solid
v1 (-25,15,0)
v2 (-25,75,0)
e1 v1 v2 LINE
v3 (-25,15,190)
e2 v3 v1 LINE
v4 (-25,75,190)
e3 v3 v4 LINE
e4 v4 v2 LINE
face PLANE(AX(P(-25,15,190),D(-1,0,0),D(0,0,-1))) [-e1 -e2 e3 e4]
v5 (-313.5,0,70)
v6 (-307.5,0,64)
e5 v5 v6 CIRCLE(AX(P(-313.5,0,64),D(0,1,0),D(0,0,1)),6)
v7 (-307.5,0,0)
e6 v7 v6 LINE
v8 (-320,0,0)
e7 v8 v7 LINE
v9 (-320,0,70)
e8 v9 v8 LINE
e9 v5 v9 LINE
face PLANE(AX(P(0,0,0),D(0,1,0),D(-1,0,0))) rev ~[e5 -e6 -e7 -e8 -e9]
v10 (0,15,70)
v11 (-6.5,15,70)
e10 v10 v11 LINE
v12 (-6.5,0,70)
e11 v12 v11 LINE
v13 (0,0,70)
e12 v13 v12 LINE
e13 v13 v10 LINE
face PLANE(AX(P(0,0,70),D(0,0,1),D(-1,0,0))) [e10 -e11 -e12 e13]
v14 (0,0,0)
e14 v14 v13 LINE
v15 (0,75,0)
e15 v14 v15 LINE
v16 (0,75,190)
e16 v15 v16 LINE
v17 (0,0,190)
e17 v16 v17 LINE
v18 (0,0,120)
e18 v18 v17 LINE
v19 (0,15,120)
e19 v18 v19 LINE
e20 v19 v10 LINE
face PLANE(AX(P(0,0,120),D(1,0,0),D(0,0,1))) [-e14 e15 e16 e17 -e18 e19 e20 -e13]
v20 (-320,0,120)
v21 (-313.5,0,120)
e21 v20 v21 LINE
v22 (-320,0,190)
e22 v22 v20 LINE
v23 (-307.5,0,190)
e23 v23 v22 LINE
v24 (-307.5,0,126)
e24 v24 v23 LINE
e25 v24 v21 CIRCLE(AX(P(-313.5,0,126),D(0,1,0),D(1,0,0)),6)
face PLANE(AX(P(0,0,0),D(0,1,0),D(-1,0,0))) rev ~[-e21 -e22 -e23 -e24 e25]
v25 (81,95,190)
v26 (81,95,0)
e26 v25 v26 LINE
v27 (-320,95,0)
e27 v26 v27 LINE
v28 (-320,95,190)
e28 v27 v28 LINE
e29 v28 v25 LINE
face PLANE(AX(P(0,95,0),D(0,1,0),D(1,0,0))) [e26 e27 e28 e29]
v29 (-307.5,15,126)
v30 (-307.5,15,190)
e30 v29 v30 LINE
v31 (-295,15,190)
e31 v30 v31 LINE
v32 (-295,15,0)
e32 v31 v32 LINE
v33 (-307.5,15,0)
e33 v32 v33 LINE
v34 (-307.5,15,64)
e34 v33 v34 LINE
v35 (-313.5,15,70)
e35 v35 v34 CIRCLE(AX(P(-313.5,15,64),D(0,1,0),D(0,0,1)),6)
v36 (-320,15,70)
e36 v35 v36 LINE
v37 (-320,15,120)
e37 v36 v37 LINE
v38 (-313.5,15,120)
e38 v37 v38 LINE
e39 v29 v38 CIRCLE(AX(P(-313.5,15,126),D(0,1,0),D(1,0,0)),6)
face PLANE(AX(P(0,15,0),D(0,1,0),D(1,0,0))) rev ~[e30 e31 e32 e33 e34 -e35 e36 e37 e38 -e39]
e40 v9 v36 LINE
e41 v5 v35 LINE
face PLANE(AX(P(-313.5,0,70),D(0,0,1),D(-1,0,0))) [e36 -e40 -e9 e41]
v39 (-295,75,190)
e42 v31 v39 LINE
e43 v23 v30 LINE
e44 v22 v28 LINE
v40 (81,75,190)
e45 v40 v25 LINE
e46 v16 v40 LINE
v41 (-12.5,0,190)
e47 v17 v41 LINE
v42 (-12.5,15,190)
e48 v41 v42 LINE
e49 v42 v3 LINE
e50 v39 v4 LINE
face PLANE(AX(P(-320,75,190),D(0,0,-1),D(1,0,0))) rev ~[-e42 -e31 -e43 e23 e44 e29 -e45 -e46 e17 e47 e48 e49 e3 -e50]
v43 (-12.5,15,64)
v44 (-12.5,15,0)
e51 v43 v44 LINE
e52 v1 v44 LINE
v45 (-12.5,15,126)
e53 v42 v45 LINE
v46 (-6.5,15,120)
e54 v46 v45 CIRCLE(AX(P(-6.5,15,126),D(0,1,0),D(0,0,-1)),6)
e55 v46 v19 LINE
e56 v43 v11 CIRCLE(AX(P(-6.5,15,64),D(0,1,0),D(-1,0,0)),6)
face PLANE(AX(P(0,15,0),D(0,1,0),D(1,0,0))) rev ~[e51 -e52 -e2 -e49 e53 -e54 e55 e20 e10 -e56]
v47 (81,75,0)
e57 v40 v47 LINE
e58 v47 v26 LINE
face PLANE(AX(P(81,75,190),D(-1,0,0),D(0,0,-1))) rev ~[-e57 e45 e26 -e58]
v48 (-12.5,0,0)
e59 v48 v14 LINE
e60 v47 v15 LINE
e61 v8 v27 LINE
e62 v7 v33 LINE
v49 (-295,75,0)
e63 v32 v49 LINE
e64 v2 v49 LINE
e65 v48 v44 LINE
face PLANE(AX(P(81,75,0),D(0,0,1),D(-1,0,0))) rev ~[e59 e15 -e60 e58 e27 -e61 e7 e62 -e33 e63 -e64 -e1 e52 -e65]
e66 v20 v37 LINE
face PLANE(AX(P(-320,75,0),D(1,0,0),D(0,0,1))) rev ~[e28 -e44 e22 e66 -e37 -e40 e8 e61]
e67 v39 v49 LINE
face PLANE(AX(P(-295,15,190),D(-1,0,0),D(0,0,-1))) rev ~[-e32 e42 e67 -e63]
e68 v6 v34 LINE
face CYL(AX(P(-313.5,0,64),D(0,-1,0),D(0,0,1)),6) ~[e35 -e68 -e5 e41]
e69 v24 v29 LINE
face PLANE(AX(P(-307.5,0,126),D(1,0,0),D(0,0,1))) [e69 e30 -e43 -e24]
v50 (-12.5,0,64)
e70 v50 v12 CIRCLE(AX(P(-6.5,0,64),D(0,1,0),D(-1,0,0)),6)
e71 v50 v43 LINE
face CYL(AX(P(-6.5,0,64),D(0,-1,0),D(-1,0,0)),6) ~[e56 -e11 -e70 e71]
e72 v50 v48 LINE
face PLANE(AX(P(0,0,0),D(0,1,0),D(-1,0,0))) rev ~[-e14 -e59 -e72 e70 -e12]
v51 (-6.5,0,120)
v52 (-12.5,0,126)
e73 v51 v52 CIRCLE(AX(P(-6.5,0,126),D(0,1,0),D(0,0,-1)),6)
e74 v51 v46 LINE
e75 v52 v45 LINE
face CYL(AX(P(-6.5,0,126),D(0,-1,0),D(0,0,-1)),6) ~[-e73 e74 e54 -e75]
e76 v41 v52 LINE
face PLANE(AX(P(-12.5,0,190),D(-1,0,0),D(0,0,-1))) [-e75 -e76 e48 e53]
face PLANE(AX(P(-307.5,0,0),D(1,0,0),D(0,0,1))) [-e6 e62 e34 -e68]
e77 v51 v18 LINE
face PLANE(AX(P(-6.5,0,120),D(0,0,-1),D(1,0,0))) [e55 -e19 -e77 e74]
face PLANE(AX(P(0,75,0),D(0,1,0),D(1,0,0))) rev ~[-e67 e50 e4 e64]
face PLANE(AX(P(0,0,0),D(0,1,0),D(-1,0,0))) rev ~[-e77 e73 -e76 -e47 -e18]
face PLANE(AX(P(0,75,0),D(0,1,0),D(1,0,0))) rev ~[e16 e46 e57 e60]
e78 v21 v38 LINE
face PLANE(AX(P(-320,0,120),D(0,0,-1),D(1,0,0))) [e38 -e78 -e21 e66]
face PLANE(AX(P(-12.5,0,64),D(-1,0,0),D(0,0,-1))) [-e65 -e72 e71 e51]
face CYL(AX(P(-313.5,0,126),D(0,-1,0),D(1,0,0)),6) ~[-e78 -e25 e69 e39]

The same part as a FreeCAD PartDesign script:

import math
import FreeCAD as App
import Part
import Sketcher

V = App.Vector
Q = App.Units.Quantity

doc = App.newDocument("Part")
body = doc.addObject("PartDesign::Body", "Body")
body.AllowCompound = True

sketch1 = body.newObject("Sketcher::SketchObject", "Sketch")
sketch1.AttachmentSupport = (doc.getObject("XZ_Plane"), [""])
sketch1.MapMode = "FlatFace"
sketch1.addGeometry([
    Part.LineSegment(V(-320, 70, 0), V(-314, 70, 0)),
    Part.ArcOfCircle(Part.Circle(V(-314, 64, 0), V(0, 0, 1), 6), math.radians(0), math.radians(90)),
    Part.LineSegment(V(-308, 64, 0), V(-308, 0, 0)),
    Part.LineSegment(V(-308, 0, 0), V(-320, 0, 0)),
    Part.LineSegment(V(-320, 0, 0), V(-320, 70, 0)),
    Part.LineSegment(V(-308, 190, 0), V(-308, 126, 0)),
    Part.ArcOfCircle(Part.Circle(V(-314, 126, 0), V(0, 0, 1), 6), math.radians(-90), math.radians(0)),
    Part.LineSegment(V(-314, 120, 0), V(-320, 120, 0)),
    Part.LineSegment(V(-320, 120, 0), V(-320, 190, 0)),
    Part.LineSegment(V(-320, 190, 0), V(-308, 190, 0)),
    Part.LineSegment(V(0, 120, 0), V(-6, 120, 0)),
    Part.ArcOfCircle(Part.Circle(V(-6, 126, 0), V(0, 0, 1), 6), math.radians(180), math.radians(270)),
    Part.LineSegment(V(-12, 126, 0), V(-12, 190, 0)),
    Part.LineSegment(V(-12, 190, 0), V(0, 190, 0)),
    Part.LineSegment(V(0, 190, 0), V(0, 120, 0)),
    Part.LineSegment(V(-12, 0, 0), V(-12, 64, 0)),
    Part.ArcOfCircle(Part.Circle(V(-6, 64, 0), V(0, 0, 1), 6), math.radians(90), math.radians(180)),
    Part.LineSegment(V(-6, 70, 0), V(0, 70, 0)),
    Part.LineSegment(V(0, 70, 0), V(0, 0, 0)),
    Part.LineSegment(V(0, 0, 0), V(-12, 0, 0)),
], False)
sketch1.addConstraint([
    Sketcher.Constraint("Tangent", 0, 2, 1, 2),
    Sketcher.Constraint("Tangent", 1, 1, 2, 1),
    Sketcher.Constraint("Coincident", 2, 2, 3, 1),
    Sketcher.Constraint("Coincident", 3, 2, 4, 1),
    Sketcher.Constraint("Coincident", 4, 2, 0, 1),
    Sketcher.Constraint("Tangent", 5, 2, 6, 2),
    Sketcher.Constraint("Tangent", 6, 1, 7, 1),
    Sketcher.Constraint("Coincident", 7, 2, 8, 1),
    Sketcher.Constraint("Coincident", 8, 2, 9, 1),
    Sketcher.Constraint("Coincident", 9, 2, 5, 1),
    Sketcher.Constraint("Tangent", 10, 2, 11, 2),
    Sketcher.Constraint("Tangent", 11, 1, 12, 1),
    Sketcher.Constraint("Coincident", 12, 2, 13, 1),
    Sketcher.Constraint("Coincident", 13, 2, 14, 1),
    Sketcher.Constraint("Coincident", 14, 2, 10, 1),
    Sketcher.Constraint("Tangent", 15, 2, 16, 2),
    Sketcher.Constraint("Tangent", 16, 1, 17, 1),
    Sketcher.Constraint("Coincident", 17, 2, 18, 1),
    Sketcher.Constraint("Coincident", 18, 2, 19, 1),
    Sketcher.Constraint("Coincident", 19, 2, 15, 1),
    Sketcher.Constraint("Horizontal", 0),
    Sketcher.Constraint("Vertical", 2),
    Sketcher.Constraint("Horizontal", 3),
    Sketcher.Constraint("Vertical", 4),
    Sketcher.Constraint("Vertical", 5),
    Sketcher.Constraint("Horizontal", 7),
    Sketcher.Constraint("Vertical", 8),
    Sketcher.Constraint("Horizontal", 9),
    Sketcher.Constraint("Horizontal", 10),
    Sketcher.Constraint("Vertical", 12),
    Sketcher.Constraint("Horizontal", 13),
    Sketcher.Constraint("Vertical", 14),
    Sketcher.Constraint("Vertical", 15),
    Sketcher.Constraint("Horizontal", 17),
    Sketcher.Constraint("Vertical", 18),
    Sketcher.Constraint("Horizontal", 19),
    Sketcher.Constraint("Coincident", 18, 2, -1, 1),
    Sketcher.Constraint("Equal", 1, 6),
    Sketcher.Constraint("Equal", 6, 11),
    Sketcher.Constraint("Equal", 11, 16),
    Sketcher.Constraint("PointOnObject", 2, 2, -1),
    Sketcher.Constraint("PointOnObject", 13, 2, -2),
    Sketcher.Constraint("Horizontal", 6, 3, 11, 3),
    Sketcher.Constraint("Horizontal", 1, 3, 16, 3),
    Sketcher.Constraint("Horizontal", 9, 2, 12, 2),
    Sketcher.Constraint("Vertical", 1, 3, 6, 3),
    Sketcher.Constraint("Vertical", 11, 3, 16, 3),
    Sketcher.Constraint("Vertical", 4, 2, 7, 2),
    Sketcher.Constraint("Equal", 7, 10),
    Sketcher.Constraint("Equal", 2, 5),
    Sketcher.Constraint("Radius", 1, Q("6 mm")),
    Sketcher.Constraint("DistanceY", 2, 2, 2, 1, Q("64 mm")),
    Sketcher.Constraint("DistanceX", 0, 1, 0, 2, Q("6.5 mm")),
    Sketcher.Constraint("DistanceY", -1, 1, 6, 3, Q("126 mm")),
    Sketcher.Constraint("DistanceX", 3, 2, -1, 1, Q("320 mm")),
])
pad1 = body.newObject("PartDesign::Pad", "Pad")
pad1.Profile = sketch1
pad1.Length = 15
pad1.Reversed = True

sketch2 = body.newObject("Sketcher::SketchObject", "Sketch001")
sketch2.AttachmentSupport = (doc.getObject("XZ_Plane"), [""])
sketch2.MapMode = "FlatFace"
sketch2.AttachmentOffset = App.Placement(V(0, 0, -15), App.Rotation())
sketch2.addGeometry([
    Part.LineSegment(V(-320, 0, 0), V(-320, 190, 0)),
    Part.LineSegment(V(-320, 190, 0), V(-295, 190, 0)),
    Part.LineSegment(V(-295, 190, 0), V(-295, 0, 0)),
    Part.LineSegment(V(-295, 0, 0), V(-320, 0, 0)),
    Part.LineSegment(V(-25, 190, 0), V(0, 190, 0)),
    Part.LineSegment(V(0, 190, 0), V(0, 0, 0)),
    Part.LineSegment(V(0, 0, 0), V(-25, 0, 0)),
    Part.LineSegment(V(-25, 0, 0), V(-25, 190, 0)),
], False)
sketch2.addConstraint([
    Sketcher.Constraint("Coincident", 0, 2, 1, 1),
    Sketcher.Constraint("Coincident", 1, 2, 2, 1),
    Sketcher.Constraint("Coincident", 2, 2, 3, 1),
    Sketcher.Constraint("Coincident", 3, 2, 0, 1),
    Sketcher.Constraint("Coincident", 4, 2, 5, 1),
    Sketcher.Constraint("Coincident", 5, 2, 6, 1),
    Sketcher.Constraint("Coincident", 6, 2, 7, 1),
    Sketcher.Constraint("Coincident", 7, 2, 4, 1),
    Sketcher.Constraint("Vertical", 0),
    Sketcher.Constraint("Horizontal", 1),
    Sketcher.Constraint("Vertical", 2),
    Sketcher.Constraint("Horizontal", 3),
    Sketcher.Constraint("Horizontal", 4),
    Sketcher.Constraint("Vertical", 5),
    Sketcher.Constraint("Horizontal", 6),
    Sketcher.Constraint("Vertical", 7),
    Sketcher.Constraint("Coincident", 5, 2, -1, 1),
    Sketcher.Constraint("PointOnObject", 2, 2, -1),
    Sketcher.Constraint("Horizontal", 1, 2, 4, 2),
    Sketcher.Constraint("Equal", 3, 4),
    Sketcher.Constraint("DistanceX", 1, 1, 1, 2, Q("25 mm")),
    Sketcher.Constraint("DistanceY", 0, 1, 0, 2, Q("190 mm")),
    Sketcher.Constraint("DistanceX", 0, 2, -1, 1, Q("320 mm")),
])
pad2 = body.newObject("PartDesign::Pad", "Pad001")
pad2.Profile = sketch2
pad2.Length = 60
pad2.Reversed = True

sketch3 = body.newObject("Sketcher::SketchObject", "Sketch002")
sketch3.AttachmentSupport = (doc.getObject("XZ_Plane"), [""])
sketch3.MapMode = "FlatFace"
sketch3.AttachmentOffset = App.Placement(V(0, 0, -75), App.Rotation())
sketch3.addGeometry([
    Part.LineSegment(V(81, 0, 0), V(-320, 0, 0)),
    Part.LineSegment(V(-320, 0, 0), V(-320, 190, 0)),
    Part.LineSegment(V(-320, 190, 0), V(81, 190, 0)),
    Part.LineSegment(V(81, 190, 0), V(81, 0, 0)),
], False)
sketch3.addConstraint([
    Sketcher.Constraint("Coincident", 0, 2, 1, 1),
    Sketcher.Constraint("Coincident", 1, 2, 2, 1),
    Sketcher.Constraint("Coincident", 2, 2, 3, 1),
    Sketcher.Constraint("Coincident", 3, 2, 0, 1),
    Sketcher.Constraint("Horizontal", 0),
    Sketcher.Constraint("Vertical", 1),
    Sketcher.Constraint("Horizontal", 2),
    Sketcher.Constraint("Vertical", 3),
    Sketcher.Constraint("PointOnObject", 0, 2, -1),
    Sketcher.Constraint("DistanceX", 0, 2, 0, 1, Q("401 mm")),
    Sketcher.Constraint("DistanceY", 1, 1, 1, 2, Q("190 mm")),
    Sketcher.Constraint("DistanceX", 0, 2, -1, 1, Q("320 mm")),
])
pad3 = body.newObject("PartDesign::Pad", "Pad002")
pad3.Profile = sketch3
pad3.Length = 20
pad3.Reversed = True

doc.recompute()
